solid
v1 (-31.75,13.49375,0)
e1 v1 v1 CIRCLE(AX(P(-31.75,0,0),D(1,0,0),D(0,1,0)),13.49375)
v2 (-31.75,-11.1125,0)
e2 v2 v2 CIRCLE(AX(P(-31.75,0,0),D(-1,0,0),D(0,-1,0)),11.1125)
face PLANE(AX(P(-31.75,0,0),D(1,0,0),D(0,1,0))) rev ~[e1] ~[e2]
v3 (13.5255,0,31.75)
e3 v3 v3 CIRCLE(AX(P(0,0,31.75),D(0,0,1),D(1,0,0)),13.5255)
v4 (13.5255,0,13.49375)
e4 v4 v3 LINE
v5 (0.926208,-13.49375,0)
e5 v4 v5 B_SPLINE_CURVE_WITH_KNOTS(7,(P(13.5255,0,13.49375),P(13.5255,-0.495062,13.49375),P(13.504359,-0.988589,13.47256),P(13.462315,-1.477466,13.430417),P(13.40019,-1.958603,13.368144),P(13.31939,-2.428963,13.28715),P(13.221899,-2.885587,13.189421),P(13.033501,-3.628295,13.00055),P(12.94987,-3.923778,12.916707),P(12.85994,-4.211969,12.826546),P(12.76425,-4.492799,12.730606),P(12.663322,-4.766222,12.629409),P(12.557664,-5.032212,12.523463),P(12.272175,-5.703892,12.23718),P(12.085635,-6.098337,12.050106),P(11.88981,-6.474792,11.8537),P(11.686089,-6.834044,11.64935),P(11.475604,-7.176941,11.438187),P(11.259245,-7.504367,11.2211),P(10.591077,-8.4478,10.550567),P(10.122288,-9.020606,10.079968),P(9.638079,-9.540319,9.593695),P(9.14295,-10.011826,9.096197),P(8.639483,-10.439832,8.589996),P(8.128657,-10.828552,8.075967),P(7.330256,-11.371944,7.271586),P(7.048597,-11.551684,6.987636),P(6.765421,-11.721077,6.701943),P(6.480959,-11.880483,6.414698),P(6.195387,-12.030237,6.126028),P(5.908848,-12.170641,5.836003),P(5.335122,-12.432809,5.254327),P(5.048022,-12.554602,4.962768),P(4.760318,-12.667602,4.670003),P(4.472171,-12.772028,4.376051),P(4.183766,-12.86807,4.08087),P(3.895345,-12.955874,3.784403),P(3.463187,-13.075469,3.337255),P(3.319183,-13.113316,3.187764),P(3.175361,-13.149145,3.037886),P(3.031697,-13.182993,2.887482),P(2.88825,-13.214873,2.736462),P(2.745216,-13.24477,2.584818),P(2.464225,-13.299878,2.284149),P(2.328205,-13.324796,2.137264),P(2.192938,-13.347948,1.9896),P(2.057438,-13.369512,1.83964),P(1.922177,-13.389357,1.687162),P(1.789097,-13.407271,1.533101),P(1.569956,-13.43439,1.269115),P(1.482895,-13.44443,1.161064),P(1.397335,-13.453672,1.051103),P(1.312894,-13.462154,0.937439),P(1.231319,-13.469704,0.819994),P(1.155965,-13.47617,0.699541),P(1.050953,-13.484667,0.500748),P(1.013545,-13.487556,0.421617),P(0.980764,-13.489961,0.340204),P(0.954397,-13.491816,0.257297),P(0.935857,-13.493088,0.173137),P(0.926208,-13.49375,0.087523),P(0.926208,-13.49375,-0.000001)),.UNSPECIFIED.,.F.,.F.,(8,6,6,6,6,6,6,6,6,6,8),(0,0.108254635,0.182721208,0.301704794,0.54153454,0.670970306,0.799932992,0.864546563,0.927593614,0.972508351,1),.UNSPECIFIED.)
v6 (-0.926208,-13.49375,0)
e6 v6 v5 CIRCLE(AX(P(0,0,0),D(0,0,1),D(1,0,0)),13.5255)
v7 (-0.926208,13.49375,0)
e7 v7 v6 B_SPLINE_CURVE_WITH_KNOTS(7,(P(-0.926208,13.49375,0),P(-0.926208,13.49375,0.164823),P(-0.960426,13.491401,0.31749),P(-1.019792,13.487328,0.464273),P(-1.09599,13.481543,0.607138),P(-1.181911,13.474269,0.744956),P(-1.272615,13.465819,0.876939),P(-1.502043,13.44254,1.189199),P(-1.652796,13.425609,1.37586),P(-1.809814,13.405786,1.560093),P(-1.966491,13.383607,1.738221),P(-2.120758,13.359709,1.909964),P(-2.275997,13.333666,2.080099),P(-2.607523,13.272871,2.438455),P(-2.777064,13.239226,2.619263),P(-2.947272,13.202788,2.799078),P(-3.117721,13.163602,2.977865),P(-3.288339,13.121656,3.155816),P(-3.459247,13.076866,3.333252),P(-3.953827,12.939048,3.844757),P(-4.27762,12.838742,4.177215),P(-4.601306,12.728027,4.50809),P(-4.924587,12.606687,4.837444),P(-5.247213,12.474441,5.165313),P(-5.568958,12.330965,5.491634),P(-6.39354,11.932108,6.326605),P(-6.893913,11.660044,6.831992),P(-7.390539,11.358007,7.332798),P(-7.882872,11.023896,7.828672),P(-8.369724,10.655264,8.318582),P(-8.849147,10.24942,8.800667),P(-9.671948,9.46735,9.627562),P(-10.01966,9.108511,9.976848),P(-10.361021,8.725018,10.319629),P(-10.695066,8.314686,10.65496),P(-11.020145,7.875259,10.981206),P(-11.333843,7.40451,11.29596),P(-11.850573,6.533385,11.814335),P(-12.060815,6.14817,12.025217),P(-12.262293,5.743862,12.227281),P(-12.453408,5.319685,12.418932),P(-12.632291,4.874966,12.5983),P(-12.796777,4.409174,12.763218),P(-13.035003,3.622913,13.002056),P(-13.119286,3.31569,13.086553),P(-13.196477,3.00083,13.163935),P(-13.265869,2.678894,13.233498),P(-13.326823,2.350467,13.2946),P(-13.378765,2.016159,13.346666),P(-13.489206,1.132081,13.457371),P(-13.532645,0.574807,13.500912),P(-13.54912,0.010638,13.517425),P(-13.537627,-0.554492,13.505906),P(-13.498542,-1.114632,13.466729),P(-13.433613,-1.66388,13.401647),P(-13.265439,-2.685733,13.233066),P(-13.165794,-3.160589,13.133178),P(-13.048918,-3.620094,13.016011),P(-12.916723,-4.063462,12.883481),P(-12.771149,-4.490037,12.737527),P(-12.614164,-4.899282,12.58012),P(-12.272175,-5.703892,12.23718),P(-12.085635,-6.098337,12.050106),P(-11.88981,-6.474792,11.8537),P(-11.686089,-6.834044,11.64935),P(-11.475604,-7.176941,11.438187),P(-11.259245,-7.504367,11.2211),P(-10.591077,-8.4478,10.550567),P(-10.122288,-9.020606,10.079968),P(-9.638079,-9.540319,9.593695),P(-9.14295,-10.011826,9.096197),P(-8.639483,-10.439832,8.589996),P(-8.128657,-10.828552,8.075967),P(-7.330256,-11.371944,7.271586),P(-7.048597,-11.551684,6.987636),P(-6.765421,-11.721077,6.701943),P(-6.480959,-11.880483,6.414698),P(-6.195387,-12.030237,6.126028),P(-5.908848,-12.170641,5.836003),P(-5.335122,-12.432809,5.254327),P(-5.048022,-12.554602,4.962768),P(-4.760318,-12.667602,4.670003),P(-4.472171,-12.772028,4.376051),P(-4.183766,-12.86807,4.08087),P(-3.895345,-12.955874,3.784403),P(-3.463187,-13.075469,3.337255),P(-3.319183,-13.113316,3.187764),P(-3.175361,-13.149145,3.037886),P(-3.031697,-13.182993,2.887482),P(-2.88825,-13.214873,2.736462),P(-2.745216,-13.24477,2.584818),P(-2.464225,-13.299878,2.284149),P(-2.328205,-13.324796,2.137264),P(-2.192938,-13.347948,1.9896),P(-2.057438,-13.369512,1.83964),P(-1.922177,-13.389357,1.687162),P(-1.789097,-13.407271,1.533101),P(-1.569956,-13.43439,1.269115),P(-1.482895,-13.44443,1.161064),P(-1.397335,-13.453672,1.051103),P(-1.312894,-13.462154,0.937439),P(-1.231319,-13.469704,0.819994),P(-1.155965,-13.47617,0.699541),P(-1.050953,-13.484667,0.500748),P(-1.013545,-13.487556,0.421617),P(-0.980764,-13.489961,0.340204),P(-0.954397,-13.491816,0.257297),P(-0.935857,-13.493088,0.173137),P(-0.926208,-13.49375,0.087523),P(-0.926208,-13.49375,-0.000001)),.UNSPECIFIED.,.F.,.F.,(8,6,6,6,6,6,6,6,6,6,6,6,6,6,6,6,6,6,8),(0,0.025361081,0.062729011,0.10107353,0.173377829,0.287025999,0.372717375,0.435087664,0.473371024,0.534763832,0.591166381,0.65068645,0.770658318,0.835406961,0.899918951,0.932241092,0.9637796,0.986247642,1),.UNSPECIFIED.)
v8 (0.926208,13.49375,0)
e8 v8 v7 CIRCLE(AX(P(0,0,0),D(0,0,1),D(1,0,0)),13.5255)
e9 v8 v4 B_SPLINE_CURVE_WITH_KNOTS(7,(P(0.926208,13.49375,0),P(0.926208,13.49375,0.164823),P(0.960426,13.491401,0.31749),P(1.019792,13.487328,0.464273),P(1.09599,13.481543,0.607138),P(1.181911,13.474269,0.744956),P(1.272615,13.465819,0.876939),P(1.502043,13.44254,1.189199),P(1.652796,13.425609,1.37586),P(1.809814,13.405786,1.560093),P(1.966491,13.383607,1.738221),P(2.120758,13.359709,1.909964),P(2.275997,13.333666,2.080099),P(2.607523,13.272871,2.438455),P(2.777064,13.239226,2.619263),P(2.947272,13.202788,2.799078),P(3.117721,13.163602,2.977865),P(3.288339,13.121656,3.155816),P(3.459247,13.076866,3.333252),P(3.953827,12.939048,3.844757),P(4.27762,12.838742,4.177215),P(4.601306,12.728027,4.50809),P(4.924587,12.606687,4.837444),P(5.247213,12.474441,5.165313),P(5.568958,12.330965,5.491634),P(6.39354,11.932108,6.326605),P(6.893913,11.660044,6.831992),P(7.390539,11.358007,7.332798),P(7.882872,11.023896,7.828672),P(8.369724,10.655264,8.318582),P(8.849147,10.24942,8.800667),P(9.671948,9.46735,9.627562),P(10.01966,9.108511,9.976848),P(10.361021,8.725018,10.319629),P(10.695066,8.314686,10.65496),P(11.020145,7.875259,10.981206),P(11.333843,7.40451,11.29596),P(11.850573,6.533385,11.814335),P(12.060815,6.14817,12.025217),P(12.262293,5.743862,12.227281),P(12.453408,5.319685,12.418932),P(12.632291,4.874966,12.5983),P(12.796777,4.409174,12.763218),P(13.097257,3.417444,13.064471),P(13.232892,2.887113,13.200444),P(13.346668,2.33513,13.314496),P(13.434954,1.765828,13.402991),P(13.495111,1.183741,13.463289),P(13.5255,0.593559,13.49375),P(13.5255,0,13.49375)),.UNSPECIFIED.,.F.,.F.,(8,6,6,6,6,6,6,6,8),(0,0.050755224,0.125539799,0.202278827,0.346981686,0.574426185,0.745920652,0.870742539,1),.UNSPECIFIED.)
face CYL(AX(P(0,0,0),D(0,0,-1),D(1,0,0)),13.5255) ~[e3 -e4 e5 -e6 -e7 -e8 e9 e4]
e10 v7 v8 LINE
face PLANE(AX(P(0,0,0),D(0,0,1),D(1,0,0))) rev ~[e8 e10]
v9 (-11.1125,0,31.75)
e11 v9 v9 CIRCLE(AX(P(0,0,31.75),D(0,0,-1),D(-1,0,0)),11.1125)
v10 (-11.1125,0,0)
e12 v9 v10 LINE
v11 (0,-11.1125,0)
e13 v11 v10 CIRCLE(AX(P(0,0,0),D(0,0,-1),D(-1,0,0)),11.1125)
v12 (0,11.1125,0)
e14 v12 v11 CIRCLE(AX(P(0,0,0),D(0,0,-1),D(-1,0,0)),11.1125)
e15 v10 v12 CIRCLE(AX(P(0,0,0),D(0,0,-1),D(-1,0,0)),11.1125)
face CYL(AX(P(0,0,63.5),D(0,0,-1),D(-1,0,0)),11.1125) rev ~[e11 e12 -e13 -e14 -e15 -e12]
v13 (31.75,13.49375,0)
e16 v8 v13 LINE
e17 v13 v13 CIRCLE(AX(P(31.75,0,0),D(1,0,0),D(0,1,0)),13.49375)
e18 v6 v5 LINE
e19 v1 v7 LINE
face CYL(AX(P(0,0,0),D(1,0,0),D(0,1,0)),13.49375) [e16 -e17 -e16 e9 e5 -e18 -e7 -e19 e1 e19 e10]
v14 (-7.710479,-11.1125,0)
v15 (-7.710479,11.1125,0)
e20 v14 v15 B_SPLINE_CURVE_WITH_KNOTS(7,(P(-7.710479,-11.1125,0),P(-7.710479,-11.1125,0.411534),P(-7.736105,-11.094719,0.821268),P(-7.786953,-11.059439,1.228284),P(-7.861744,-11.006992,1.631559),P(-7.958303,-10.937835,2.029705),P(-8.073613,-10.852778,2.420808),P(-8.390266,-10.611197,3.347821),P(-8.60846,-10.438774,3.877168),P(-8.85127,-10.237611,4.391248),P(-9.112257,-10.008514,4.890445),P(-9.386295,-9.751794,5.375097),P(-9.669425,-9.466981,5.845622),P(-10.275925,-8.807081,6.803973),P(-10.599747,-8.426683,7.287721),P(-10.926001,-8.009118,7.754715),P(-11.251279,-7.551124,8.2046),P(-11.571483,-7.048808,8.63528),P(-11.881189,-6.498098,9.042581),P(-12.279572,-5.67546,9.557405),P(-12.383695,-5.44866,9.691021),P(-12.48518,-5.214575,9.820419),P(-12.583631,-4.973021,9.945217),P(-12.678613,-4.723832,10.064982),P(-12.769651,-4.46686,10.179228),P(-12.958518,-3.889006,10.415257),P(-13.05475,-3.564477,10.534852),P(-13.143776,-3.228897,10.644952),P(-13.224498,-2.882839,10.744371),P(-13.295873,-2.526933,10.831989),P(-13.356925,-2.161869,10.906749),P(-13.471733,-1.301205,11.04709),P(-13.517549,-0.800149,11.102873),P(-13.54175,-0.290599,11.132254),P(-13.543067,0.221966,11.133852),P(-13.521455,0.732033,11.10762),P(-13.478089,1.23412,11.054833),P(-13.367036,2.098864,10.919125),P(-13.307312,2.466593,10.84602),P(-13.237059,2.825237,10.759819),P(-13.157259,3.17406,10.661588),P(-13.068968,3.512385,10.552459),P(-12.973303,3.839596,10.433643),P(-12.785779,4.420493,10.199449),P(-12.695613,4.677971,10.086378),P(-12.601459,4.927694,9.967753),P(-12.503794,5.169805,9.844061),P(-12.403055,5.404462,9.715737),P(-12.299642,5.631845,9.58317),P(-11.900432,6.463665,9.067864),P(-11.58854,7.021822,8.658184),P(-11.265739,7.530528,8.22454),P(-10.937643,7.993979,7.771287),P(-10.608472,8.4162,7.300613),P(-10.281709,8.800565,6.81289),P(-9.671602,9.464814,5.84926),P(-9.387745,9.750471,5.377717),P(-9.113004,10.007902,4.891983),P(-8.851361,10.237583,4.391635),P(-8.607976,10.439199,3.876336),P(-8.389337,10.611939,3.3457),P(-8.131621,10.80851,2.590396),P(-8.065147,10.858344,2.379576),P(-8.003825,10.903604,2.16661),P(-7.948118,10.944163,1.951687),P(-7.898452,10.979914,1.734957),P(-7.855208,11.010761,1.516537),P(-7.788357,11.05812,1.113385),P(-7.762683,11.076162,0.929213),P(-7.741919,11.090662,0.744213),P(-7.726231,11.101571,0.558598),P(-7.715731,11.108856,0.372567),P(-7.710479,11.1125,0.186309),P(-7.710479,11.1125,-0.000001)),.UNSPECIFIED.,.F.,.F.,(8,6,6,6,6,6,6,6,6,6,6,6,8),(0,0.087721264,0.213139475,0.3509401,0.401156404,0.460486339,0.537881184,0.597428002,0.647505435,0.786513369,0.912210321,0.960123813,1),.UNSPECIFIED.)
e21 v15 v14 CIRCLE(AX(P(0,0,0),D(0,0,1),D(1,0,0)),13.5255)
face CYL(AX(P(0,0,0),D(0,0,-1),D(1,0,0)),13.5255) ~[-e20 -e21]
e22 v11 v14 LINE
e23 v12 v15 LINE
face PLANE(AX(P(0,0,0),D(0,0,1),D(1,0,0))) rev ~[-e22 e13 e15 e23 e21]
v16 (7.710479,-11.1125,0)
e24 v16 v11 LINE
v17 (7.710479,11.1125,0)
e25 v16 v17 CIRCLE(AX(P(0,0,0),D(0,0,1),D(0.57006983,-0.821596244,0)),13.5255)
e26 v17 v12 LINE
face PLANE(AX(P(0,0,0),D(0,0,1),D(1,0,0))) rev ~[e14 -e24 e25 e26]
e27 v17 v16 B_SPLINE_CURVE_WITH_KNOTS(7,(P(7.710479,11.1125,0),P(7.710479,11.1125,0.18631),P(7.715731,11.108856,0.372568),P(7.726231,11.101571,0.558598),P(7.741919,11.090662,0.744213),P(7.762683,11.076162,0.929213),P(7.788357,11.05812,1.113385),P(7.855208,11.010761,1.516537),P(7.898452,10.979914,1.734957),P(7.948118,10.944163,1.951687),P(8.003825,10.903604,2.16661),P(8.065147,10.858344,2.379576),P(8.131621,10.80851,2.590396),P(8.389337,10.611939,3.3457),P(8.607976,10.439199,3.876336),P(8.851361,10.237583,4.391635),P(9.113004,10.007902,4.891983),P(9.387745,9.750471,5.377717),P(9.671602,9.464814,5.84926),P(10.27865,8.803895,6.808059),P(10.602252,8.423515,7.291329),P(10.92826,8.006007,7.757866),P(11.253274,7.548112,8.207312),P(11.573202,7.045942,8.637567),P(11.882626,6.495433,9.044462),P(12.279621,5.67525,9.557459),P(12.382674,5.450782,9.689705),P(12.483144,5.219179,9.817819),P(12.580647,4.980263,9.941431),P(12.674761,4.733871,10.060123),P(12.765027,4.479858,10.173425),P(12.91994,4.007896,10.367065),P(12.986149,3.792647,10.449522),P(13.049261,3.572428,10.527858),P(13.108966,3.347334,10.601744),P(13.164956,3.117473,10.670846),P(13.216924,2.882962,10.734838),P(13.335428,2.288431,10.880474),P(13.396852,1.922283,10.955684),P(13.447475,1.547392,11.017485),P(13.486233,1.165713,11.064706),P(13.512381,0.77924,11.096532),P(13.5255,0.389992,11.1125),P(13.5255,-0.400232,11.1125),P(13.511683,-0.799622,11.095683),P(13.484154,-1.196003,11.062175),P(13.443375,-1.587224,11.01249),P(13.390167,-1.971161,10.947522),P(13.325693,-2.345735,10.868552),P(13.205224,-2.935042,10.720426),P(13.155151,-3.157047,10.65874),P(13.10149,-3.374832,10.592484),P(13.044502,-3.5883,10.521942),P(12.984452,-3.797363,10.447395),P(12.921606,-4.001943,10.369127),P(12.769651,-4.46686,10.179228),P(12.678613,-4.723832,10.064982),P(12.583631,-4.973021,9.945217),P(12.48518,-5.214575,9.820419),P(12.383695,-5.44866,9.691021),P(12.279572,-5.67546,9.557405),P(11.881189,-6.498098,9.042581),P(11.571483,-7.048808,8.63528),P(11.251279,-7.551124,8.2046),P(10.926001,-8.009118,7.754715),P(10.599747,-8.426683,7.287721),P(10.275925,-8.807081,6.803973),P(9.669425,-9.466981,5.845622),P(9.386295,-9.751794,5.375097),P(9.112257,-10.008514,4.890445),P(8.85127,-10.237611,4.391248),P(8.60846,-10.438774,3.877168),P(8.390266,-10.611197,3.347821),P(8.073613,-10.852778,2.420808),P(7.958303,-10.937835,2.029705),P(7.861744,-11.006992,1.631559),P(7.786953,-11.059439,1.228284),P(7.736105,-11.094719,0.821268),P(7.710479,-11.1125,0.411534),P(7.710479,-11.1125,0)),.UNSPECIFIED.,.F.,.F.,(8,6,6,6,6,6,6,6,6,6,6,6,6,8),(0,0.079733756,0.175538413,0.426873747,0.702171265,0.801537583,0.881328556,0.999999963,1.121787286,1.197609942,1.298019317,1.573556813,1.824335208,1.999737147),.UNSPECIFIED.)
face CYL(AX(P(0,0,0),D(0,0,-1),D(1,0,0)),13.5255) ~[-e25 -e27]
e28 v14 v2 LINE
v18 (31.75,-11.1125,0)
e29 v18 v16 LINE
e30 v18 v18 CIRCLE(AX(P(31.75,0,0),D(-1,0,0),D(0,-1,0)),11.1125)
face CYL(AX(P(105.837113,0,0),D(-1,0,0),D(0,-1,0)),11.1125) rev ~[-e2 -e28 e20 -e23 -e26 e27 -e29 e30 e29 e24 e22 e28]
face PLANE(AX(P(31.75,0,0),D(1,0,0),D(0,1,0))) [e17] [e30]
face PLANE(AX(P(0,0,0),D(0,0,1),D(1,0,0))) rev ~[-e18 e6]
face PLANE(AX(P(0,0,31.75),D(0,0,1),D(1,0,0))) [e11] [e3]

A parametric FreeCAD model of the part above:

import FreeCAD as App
import Part
import Sketcher
Q = App.Units.Quantity

doc = App.newDocument("Part")
body = doc.addObject("PartDesign::Body", "Body")

# Sketch on YZ plane
sketch1 = doc.addObject("Sketcher::SketchObject", "Sketch")
body.addObject(sketch1)
sketch1.AttachmentSupport = (doc.YZ_Plane, [""])
sketch1.MapMode = "FlatFace"
sketch1.addGeometry(Part.Circle(App.Vector(0, 0, 0), App.Vector(0, 0, 1), 13.49375), False)
sketch1.addConstraint([
    Sketcher.Constraint("Coincident", 0, 3, -1, 1),
    Sketcher.Constraint("Diameter", 0, Q("1.0625 in")),
])
pad1 = doc.addObject("PartDesign::Pad", "Pad")
body.addObject(pad1)
pad1.Profile = sketch1
pad1.Length = Q("2.5 in")
pad1.Midplane = True

# Sketch on YZ plane
sketch2 = doc.addObject("Sketcher::SketchObject", "Sketch001")
body.addObject(sketch2)
sketch2.AttachmentSupport = (doc.YZ_Plane, [""])
sketch2.MapMode = "FlatFace"
sketch2.AttachmentOffset = App.Placement(App.Vector(0, 0, 1.25 * 25.4), App.Rotation())
sketch2.addGeometry(Part.Circle(App.Vector(0, 0, 0), App.Vector(0, 0, 1), 11.1125), False)
sketch2.addConstraint([
    Sketcher.Constraint("Coincident", 0, 3, -1, 1),
    Sketcher.Constraint("Diameter", 0, Q("0.875 in")),
])
doc.recompute()
hole = doc.addObject("PartDesign::Hole", "Hole")
body.addObject(hole)
hole.Profile = sketch2
hole.ThreadType = "None"
hole.Diameter = Q("0.875 in")
hole.DepthType = "ThroughAll"

# Sketch on XY plane
sketch3 = doc.addObject("Sketcher::SketchObject", "Sketch002")
body.addObject(sketch3)
sketch3.AttachmentSupport = (doc.XY_Plane, [""])
sketch3.MapMode = "FlatFace"
sketch3.addGeometry(Part.Circle(App.Vector(0, 0, 0), App.Vector(0, 0, 1), 13.5255), False)
sketch3.addConstraint([
    Sketcher.Constraint("Coincident", 0, 3, -1, 1),
    Sketcher.Constraint("Diameter", 0, Q("1.065 in")),
])
pad2 = doc.addObject("PartDesign::Pad", "Pad001")
body.addObject(pad2)
pad2.Profile = sketch3
pad2.Length = Q("1.25 in")

# Sketch on XY plane
sketch4 = doc.addObject("Sketcher::SketchObject", "Sketch003")
body.addObject(sketch4)
sketch4.AttachmentSupport = (doc.XY_Plane, [""])
sketch4.MapMode = "FlatFace"
sketch4.AttachmentOffset = App.Placement(App.Vector(0, 0, 1.25 * 25.4), App.Rotation())
sketch4.addGeometry(Part.Circle(App.Vector(0, 0, 0), App.Vector(0, 0, 1), 11.1125), False)
sketch4.addConstraint([
    Sketcher.Constraint("Coincident", 0, 3, -1, 1),
    Sketcher.Constraint("Diameter", 0, Q("0.875 in")),
])
doc.recompute()
hole2 = doc.addObject("PartDesign::Hole", "Hole001")
body.addObject(hole2)
hole2.Profile = sketch4
hole2.ThreadType = "None"
hole2.Diameter = Q("0.875 in")
hole2.DepthType = "Dimension"
hole2.Depth = Q("1.25 in")
hole2.DrillPoint = "Flat"

doc.recompute()
